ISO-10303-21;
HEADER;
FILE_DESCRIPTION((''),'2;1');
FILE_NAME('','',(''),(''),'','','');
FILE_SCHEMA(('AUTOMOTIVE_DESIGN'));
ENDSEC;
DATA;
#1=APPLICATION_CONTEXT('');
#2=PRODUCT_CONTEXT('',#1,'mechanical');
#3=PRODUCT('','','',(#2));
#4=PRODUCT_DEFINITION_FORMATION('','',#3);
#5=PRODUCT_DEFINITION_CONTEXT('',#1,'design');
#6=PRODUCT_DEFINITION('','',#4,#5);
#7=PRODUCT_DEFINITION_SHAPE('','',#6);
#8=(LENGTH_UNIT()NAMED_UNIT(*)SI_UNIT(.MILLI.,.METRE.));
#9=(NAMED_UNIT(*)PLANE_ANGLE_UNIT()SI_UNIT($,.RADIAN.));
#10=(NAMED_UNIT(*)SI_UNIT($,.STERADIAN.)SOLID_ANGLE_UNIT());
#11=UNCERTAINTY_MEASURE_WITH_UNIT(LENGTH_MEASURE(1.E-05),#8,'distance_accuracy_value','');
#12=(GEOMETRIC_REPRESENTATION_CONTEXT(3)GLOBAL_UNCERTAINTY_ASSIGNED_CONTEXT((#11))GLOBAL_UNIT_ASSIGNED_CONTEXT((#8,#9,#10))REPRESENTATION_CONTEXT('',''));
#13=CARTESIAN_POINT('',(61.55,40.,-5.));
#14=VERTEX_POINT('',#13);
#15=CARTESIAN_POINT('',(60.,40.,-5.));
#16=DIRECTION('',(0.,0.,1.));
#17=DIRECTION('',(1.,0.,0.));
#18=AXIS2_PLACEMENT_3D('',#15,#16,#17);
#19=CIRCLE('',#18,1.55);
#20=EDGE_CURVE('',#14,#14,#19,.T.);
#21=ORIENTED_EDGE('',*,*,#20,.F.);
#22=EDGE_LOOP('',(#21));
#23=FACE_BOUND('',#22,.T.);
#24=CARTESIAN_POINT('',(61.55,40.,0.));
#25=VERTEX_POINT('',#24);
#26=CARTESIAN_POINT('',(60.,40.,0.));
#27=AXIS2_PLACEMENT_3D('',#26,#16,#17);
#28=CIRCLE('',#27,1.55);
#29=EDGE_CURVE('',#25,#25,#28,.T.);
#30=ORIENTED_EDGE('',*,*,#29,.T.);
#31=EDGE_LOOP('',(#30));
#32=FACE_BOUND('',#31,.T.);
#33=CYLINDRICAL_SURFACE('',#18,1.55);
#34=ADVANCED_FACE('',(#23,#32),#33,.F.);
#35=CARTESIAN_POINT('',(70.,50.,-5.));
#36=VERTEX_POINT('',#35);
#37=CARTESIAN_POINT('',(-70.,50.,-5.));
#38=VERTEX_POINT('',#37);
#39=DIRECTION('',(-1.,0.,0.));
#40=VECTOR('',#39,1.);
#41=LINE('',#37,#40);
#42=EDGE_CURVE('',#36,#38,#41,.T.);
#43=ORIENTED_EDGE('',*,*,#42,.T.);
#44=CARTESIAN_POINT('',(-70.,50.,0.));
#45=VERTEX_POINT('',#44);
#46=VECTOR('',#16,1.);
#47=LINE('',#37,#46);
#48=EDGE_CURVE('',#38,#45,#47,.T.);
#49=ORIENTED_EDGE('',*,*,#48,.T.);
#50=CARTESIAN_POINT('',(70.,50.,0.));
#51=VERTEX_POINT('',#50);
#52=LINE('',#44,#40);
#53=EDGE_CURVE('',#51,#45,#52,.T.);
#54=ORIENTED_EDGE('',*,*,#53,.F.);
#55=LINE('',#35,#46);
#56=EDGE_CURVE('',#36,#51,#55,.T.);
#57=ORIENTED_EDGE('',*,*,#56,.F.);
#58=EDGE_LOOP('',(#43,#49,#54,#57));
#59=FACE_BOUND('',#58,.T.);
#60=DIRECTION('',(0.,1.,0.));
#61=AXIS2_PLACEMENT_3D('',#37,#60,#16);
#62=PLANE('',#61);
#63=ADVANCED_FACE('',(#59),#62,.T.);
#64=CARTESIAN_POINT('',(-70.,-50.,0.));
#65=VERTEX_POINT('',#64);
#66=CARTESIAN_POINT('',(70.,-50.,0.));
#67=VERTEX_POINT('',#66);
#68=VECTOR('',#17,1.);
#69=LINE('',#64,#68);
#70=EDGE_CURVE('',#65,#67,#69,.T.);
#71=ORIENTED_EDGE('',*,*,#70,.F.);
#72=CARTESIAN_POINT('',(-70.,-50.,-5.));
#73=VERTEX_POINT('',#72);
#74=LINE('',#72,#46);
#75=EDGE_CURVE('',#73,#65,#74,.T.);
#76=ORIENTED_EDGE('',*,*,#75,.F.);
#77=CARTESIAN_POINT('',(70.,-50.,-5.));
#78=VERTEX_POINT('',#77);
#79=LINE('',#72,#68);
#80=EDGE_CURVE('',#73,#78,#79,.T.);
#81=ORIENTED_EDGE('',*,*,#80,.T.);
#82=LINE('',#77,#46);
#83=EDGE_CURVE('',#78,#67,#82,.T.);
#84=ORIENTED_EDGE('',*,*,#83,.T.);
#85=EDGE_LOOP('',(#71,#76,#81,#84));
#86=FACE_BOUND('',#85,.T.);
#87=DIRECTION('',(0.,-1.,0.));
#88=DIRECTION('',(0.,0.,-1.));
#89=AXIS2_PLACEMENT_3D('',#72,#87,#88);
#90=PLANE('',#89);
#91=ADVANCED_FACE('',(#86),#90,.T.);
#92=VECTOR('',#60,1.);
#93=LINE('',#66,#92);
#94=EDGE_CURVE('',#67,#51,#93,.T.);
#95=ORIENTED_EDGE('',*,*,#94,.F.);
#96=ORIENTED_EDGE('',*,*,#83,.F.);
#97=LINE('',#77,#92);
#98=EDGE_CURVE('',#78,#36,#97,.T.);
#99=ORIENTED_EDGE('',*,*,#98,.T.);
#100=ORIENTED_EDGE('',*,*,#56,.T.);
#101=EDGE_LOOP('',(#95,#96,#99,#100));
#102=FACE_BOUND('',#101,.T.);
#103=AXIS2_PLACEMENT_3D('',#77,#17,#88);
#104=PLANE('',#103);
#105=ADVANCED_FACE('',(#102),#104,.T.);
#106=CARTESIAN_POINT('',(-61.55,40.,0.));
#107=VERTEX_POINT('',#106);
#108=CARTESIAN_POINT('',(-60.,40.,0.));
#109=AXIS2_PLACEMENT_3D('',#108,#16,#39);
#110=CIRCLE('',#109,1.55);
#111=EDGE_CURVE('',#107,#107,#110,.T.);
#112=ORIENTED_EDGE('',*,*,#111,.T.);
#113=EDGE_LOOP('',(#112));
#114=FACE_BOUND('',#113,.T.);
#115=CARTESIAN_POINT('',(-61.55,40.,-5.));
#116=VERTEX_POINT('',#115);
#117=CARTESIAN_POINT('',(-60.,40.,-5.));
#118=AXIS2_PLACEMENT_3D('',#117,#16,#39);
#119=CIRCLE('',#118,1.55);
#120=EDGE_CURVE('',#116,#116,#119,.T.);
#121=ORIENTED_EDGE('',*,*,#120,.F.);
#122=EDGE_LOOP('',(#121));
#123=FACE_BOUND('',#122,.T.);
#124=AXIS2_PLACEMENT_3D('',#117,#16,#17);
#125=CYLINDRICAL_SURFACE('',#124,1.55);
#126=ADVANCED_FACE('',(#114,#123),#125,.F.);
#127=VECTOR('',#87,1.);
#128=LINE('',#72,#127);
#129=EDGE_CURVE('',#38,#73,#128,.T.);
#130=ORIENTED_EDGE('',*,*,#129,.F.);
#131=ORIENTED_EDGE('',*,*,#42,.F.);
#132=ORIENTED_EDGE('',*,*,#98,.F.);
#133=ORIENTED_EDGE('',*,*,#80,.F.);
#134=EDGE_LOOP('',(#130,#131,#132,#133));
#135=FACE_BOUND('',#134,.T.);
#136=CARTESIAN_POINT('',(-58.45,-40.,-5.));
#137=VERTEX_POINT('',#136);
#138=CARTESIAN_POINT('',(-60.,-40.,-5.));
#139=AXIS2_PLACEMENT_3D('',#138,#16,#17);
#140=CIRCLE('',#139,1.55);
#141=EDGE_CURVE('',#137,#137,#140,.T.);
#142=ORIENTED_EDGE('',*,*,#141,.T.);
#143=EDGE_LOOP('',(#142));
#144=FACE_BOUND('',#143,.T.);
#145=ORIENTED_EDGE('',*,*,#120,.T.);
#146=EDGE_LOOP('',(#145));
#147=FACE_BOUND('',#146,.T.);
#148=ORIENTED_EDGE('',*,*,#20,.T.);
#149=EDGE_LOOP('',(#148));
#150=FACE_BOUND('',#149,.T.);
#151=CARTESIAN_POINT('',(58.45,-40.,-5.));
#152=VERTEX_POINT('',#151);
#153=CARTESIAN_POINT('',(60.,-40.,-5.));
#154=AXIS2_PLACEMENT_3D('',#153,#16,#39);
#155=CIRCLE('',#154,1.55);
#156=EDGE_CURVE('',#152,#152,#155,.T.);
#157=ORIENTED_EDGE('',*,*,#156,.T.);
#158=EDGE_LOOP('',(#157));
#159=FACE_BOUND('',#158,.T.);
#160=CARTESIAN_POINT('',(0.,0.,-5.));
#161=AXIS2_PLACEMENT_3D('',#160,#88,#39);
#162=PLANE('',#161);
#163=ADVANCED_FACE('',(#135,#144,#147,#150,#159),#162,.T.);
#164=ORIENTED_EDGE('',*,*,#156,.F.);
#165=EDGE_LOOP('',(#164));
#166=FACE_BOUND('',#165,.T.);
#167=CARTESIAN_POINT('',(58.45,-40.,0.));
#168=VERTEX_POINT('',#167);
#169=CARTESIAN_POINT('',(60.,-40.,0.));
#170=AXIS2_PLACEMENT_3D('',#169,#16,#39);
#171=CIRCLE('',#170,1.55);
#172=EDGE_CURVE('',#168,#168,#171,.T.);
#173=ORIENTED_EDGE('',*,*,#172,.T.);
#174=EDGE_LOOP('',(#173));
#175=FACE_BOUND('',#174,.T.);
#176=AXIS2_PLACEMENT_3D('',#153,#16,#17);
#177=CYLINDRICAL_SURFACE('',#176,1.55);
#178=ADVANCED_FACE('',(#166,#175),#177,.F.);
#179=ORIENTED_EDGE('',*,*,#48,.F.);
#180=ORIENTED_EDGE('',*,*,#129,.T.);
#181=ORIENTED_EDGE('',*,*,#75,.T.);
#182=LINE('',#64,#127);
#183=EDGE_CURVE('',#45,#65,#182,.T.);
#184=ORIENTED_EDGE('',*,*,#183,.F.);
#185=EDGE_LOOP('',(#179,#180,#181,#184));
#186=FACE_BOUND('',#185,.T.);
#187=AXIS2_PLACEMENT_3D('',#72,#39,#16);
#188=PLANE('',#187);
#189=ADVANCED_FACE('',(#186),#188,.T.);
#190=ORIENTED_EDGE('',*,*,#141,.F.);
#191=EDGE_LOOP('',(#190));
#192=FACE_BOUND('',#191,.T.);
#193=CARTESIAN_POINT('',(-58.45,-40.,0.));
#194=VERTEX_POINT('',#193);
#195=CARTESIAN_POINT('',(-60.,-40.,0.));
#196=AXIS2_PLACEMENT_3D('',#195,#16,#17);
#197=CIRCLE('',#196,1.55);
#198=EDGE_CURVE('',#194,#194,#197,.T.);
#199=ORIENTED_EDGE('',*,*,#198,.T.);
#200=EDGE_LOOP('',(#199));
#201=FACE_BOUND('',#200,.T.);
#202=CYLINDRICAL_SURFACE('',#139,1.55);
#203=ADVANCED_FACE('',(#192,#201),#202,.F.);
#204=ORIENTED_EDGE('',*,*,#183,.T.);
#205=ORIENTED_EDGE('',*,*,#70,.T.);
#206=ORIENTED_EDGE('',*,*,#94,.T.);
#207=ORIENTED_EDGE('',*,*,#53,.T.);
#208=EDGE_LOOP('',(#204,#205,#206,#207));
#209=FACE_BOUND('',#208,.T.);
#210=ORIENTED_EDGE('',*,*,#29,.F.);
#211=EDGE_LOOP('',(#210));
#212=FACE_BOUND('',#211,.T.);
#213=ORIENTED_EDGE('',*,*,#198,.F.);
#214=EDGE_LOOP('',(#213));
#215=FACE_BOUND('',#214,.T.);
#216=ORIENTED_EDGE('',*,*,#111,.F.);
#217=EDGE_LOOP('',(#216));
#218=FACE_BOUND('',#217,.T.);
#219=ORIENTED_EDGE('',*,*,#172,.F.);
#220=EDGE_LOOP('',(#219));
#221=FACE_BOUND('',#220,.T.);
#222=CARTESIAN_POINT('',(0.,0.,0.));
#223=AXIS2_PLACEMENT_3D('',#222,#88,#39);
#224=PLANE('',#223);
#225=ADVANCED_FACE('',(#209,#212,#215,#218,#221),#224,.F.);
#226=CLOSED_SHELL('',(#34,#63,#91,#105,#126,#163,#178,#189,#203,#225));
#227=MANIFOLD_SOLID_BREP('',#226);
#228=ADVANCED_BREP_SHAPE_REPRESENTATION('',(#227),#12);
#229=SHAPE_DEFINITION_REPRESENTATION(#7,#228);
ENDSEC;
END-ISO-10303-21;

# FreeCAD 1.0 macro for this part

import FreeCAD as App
import Part
import Sketcher


def add_polygon(sketch, points):
    """Adds a closed chain of lines whose ends are joined by coincident constraints."""
    first, n = sketch.GeometryCount, len(points)
    for a, b in zip(points, points[1:] + points[:1]):
        sketch.addGeometry(Part.LineSegment(App.Vector(*a, 0), App.Vector(*b, 0)), False)
    for i in range(n):
        sketch.addConstraint(Sketcher.Constraint("Coincident", first + i, 2, first + (i + 1) % n, 1))

doc = App.newDocument("Part")
params = doc.addObject("Spreadsheet::Sheet", "Params")
for row, (alias, value) in enumerate([
    ("sketch1_diameter", "3.1 mm"),
    ("sketch1_width", "140 mm"),
    ("sketch1_height", "100 mm"),
    ("pad1_length", "5 mm"),
], start=1):
    params.set(f"A{row}", alias)
    params.set(f"B{row}", "=" + value)
    params.setAlias(f"B{row}", alias)

body = doc.addObject("PartDesign::Body", "Body")

sketch1 = body.newObject("Sketcher::SketchObject", "Sketch")
sketch1.AttachmentSupport = (doc.getObject("XY_Plane"), [""])
sketch1.MapMode = "FlatFace"
add_polygon(sketch1, [(-70, 50), (-70, -50), (70, -50), (70, 50)])
sketch1.addGeometry(Part.Circle(App.Vector(-60, -40, 0), App.Vector(0, 0, 1), 1.6), False)
sketch1.addGeometry(Part.Circle(App.Vector(60, -40, 0), App.Vector(0, 0, 1), 1.6), False)
sketch1.addGeometry(Part.Circle(App.Vector(-60, 40, 0), App.Vector(0, 0, 1), 1.6), False)
sketch1.addGeometry(Part.Circle(App.Vector(60, 40, 0), App.Vector(0, 0, 1), 1.6), False)
sketch1.addConstraint(Sketcher.Constraint("Vertical", 0))
sketch1.addConstraint(Sketcher.Constraint("Horizontal", 1))
sketch1.addConstraint(Sketcher.Constraint("Vertical", 2))
sketch1.addConstraint(Sketcher.Constraint("Horizontal", 3))
sketch1.addConstraint(Sketcher.Constraint("Equal", 4, 5))
sketch1.addConstraint(Sketcher.Constraint("Equal", 5, 6))
sketch1.addConstraint(Sketcher.Constraint("Equal", 6, 7))
sketch1.addConstraint(Sketcher.Constraint("Symmetric", 5, 3, 6, 3, -1, 1))
sketch1.addConstraint(Sketcher.Constraint("Symmetric", 4, 3, 7, 3, -1, 1))
sketch1.addConstraint(Sketcher.Constraint("Symmetric", 0, 2, 2, 2, -1, 1))
sketch1.addConstraint(Sketcher.Constraint("Symmetric", 4, 3, 5, 3, -2))
sketch1.addConstraint(Sketcher.Constraint("Diameter", 4, 3.1))
sketch1.addConstraint(Sketcher.Constraint("DistanceX", 1, 1, 1, 2, 140.0))
sketch1.addConstraint(Sketcher.Constraint("DistanceY", 0, 2, 0, 1, 100.0))
sketch1.addConstraint(Sketcher.Constraint("DistanceX", 4, 3, -1, 1, 60.0))
sketch1.addConstraint(Sketcher.Constraint("DistanceY", 4, 3, -1, 1, 40.0))
sketch1.setExpression("Constraints[15]", "Params.sketch1_diameter")
sketch1.setExpression("Constraints[16]", "Params.sketch1_width")
sketch1.setExpression("Constraints[17]", "Params.sketch1_height")
pad1 = body.newObject("PartDesign::Pad", "Pad")
pad1.Profile = sketch1
pad1.setExpression("Length", "Params.pad1_length")
pad1.Reversed = True

doc.recompute()
